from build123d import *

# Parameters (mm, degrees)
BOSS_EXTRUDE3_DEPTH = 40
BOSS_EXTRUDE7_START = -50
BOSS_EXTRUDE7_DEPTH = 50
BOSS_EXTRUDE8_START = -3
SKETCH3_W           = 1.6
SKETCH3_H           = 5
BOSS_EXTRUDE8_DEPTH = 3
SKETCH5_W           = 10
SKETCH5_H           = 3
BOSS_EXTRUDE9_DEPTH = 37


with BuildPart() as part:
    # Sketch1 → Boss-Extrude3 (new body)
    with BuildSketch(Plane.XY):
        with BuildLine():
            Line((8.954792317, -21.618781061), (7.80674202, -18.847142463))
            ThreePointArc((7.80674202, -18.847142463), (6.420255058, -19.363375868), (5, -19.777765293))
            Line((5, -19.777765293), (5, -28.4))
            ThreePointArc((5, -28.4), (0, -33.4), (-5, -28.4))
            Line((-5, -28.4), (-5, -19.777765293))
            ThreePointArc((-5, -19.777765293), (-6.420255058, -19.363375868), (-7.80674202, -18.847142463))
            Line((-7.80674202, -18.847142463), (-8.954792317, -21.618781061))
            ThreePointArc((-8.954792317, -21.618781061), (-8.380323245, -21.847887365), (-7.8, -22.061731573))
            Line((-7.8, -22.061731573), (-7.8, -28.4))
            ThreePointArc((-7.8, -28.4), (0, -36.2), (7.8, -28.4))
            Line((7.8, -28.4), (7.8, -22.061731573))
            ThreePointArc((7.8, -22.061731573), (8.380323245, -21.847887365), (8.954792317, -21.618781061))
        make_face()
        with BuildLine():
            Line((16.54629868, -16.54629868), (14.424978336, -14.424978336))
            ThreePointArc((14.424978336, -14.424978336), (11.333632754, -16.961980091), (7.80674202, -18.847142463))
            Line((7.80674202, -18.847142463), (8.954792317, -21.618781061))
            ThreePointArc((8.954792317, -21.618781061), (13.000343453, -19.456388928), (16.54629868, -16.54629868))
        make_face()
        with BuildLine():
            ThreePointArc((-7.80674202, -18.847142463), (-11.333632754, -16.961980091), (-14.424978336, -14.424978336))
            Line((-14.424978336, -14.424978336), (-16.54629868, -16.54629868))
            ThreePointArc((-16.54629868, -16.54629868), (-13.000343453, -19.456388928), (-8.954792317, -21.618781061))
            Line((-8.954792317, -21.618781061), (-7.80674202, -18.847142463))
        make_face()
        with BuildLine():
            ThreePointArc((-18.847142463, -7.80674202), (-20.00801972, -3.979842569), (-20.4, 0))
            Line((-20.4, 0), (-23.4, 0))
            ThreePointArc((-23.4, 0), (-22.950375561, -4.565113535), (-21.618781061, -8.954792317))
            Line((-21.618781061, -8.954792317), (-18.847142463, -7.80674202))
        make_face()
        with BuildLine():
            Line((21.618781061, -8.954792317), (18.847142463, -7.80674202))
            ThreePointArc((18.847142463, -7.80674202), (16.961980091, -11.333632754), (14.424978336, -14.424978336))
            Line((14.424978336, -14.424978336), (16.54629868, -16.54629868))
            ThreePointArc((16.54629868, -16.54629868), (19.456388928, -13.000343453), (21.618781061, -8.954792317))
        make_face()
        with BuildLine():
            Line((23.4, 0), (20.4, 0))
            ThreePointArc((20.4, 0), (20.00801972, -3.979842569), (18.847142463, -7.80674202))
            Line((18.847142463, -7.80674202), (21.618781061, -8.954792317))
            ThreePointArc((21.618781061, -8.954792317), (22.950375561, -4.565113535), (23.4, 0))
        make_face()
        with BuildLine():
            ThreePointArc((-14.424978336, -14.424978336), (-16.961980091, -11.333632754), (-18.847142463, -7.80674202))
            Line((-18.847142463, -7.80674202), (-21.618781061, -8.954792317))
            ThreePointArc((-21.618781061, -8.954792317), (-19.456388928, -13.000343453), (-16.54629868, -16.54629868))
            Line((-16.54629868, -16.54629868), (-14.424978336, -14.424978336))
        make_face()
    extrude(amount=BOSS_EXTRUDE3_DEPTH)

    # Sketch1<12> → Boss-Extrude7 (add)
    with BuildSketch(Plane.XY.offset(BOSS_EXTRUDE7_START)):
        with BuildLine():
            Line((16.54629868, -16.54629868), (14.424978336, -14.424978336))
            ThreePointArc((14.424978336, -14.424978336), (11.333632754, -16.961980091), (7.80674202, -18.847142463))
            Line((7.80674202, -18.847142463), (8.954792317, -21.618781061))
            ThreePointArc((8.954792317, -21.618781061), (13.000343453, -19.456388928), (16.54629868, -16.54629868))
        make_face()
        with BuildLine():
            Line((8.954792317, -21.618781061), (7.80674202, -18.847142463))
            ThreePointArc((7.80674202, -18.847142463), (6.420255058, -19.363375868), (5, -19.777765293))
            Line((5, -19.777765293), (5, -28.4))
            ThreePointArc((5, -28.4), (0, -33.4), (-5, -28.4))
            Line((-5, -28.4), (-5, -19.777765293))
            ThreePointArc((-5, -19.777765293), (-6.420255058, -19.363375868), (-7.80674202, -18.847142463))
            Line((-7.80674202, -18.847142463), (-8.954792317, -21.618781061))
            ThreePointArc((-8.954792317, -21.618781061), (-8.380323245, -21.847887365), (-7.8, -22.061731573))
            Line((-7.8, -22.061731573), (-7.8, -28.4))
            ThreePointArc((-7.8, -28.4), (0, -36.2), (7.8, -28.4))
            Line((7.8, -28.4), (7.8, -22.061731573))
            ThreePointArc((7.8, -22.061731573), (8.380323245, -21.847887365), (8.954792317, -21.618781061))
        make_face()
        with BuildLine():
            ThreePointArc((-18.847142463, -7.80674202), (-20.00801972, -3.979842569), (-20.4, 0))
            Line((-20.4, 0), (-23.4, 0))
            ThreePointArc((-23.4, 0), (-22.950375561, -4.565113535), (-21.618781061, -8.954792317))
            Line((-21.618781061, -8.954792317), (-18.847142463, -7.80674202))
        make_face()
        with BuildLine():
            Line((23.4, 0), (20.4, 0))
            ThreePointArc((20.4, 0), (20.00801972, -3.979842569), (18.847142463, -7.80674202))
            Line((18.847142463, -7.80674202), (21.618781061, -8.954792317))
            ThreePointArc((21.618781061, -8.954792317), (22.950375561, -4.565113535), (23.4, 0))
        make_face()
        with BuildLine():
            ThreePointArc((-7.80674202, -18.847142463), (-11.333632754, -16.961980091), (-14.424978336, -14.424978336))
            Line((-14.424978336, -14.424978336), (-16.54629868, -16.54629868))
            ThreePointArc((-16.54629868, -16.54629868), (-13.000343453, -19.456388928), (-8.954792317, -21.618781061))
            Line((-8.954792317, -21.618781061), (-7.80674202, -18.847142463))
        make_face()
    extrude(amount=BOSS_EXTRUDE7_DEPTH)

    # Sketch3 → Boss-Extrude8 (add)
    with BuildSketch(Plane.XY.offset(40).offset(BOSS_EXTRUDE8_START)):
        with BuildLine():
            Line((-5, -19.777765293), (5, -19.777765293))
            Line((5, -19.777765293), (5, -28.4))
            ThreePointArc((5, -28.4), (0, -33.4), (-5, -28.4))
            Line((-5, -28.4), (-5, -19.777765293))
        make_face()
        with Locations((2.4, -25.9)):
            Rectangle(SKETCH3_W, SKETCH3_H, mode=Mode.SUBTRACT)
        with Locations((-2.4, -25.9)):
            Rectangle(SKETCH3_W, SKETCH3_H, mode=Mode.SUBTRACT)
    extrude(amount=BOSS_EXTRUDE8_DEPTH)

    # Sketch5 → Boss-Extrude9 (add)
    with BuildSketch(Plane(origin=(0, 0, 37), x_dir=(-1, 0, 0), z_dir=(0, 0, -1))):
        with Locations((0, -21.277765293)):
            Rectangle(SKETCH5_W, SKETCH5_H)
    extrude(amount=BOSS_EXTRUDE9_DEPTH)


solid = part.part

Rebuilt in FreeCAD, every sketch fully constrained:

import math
import FreeCAD as App
import Part
import Sketcher
from FreeCAD import Vector
Q = App.Units.Quantity

doc = App.newDocument("Part")
params = doc.addObject("Spreadsheet::Sheet", "Params")
for row, (alias, value) in enumerate([
    ("sketch1_radius", "5 mm"),
    ("sketch1_radius2", "20.4 mm"),
    ("sketch1_radius3", "23.4 mm"),
    ("sketch1_radius4", "7.8 mm"),
    ("pad1_length", "40 mm"),
    ("sketch2_radius", "5 mm"),
    ("sketch2_radius2", "20.4 mm"),
    ("sketch2_radius3", "23.4 mm"),
    ("sketch2_radius4", "7.8 mm"),
    ("pad2_length", "50 mm"),
    ("sketch3_radius", "5 mm"),
    ("sketch3_height", "5 mm"),
    ("sketch3_width", "1.6 mm"),
    ("pad3_length", "3 mm"),
    ("sketch4_width", "10 mm"),
    ("sketch4_height", "3 mm"),
    ("pad4_length", "37 mm"),
], start=1):
    params.set(f"A{row}", alias)
    params.set(f"B{row}", "=" + value)
    params.setAlias(f"B{row}", alias)

body = doc.addObject("PartDesign::Body", "Body")

sketch1 = body.newObject("Sketcher::SketchObject", "Sketch")
sketch1.AttachmentSupport = (doc.getObject("XY_Plane"), [""])
sketch1.MapMode = "FlatFace"
sketch1.addGeometry([
    Part.ArcOfCircle(Part.Circle(Vector(0, 0, 0), Vector(0, 0, 1), 20.4), math.radians(-75.81), math.radians(-67.5)),
    Part.LineSegment(Vector(5, -19.8, 0), Vector(5, -28.4, 0)),
    Part.ArcOfCircle(Part.Circle(Vector(0, -28.4, 0), Vector(0, 0, 1), 5), math.radians(180), math.radians(360)),
    Part.LineSegment(Vector(-5, -28.4, 0), Vector(-5, -19.8, 0)),
    Part.ArcOfCircle(Part.Circle(Vector(0, 0, 0), Vector(0, 0, 1), 20.4), math.radians(-112.5), math.radians(-104.19)),
    Part.ArcOfCircle(Part.Circle(Vector(0, 0, 0), Vector(0, 0, 1), 20.4), math.radians(-135), math.radians(-112)),
    Part.ArcOfCircle(Part.Circle(Vector(0, 0, 0), Vector(0, 0, 1), 20.4), math.radians(-158), math.radians(-135)),
    Part.ArcOfCircle(Part.Circle(Vector(0, 0, 0), Vector(0, 0, 1), 20.4), math.radians(-180), math.radians(-158)),
    Part.LineSegment(Vector(-20.4, 0, 0), Vector(-23.4, 0, 0)),
    Part.ArcOfCircle(Part.Circle(Vector(0, 0, 0), Vector(0, 0, 1), 23.4), math.radians(-180), math.radians(-158)),
    Part.ArcOfCircle(Part.Circle(Vector(0, 0, 0), Vector(0, 0, 1), 23.4), math.radians(-158), math.radians(-135)),
    Part.ArcOfCircle(Part.Circle(Vector(0, 0, 0), Vector(0, 0, 1), 23.4), math.radians(-135), math.radians(-112)),
    Part.ArcOfCircle(Part.Circle(Vector(0, 0, 0), Vector(0, 0, 1), 23.4), math.radians(-112.5), math.radians(-109.47)),
    Part.LineSegment(Vector(-7.8, -22.1, 0), Vector(-7.8, -28.4, 0)),
    Part.ArcOfCircle(Part.Circle(Vector(0, -28.4, 0), Vector(0, 0, 1), 7.8), math.radians(180), math.radians(360)),
    Part.LineSegment(Vector(7.8, -28.4, 0), Vector(7.8, -22.1, 0)),
    Part.ArcOfCircle(Part.Circle(Vector(0, 0, 0), Vector(0, 0, 1), 23.4), math.radians(-70.53), math.radians(-67.5)),
    Part.ArcOfCircle(Part.Circle(Vector(0, 0, 0), Vector(0, 0, 1), 23.4), math.radians(-68), math.radians(-45)),
    Part.ArcOfCircle(Part.Circle(Vector(0, 0, 0), Vector(0, 0, 1), 23.4), math.radians(-45), math.radians(-22)),
    Part.ArcOfCircle(Part.Circle(Vector(0, 0, 0), Vector(0, 0, 1), 23.4), math.radians(-22), math.radians(0)),
    Part.LineSegment(Vector(23.4, 0, 0), Vector(20.4, 0, 0)),
    Part.ArcOfCircle(Part.Circle(Vector(0, 0, 0), Vector(0, 0, 1), 20.4), math.radians(-22), math.radians(0)),
    Part.ArcOfCircle(Part.Circle(Vector(0, 0, 0), Vector(0, 0, 1), 20.4), math.radians(-45), math.radians(-22)),
    Part.ArcOfCircle(Part.Circle(Vector(0, 0, 0), Vector(0, 0, 1), 20.4), math.radians(-68), math.radians(-45)),
], False)
sketch1.addConstraint([
    Sketcher.Constraint("Coincident", 0, 1, 1, 1),
    Sketcher.Constraint("Tangent", 1, 2, 2, 2),
    Sketcher.Constraint("Tangent", 2, 1, 3, 1),
    Sketcher.Constraint("Coincident", 3, 2, 4, 2),
    Sketcher.Constraint("Tangent", 4, 1, 5, 2),
    Sketcher.Constraint("Tangent", 5, 1, 6, 2),
    Sketcher.Constraint("Tangent", 6, 1, 7, 2),
    Sketcher.Constraint("Coincident", 7, 1, 8, 1),
    Sketcher.Constraint("Coincident", 8, 2, 9, 1),
    Sketcher.Constraint("Tangent", 9, 2, 10, 1),
    Sketcher.Constraint("Tangent", 10, 2, 11, 1),
    Sketcher.Constraint("Tangent", 11, 2, 12, 1),
    Sketcher.Constraint("Coincident", 12, 2, 13, 1),
    Sketcher.Constraint("Tangent", 13, 2, 14, 1),
    Sketcher.Constraint("Tangent", 14, 2, 15, 1),
    Sketcher.Constraint("Coincident", 15, 2, 16, 1),
    Sketcher.Constraint("Tangent", 16, 2, 17, 1),
    Sketcher.Constraint("Tangent", 17, 2, 18, 1),
    Sketcher.Constraint("Tangent", 18, 2, 19, 1),
    Sketcher.Constraint("Coincident", 19, 2, 20, 1),
    Sketcher.Constraint("Coincident", 20, 2, 21, 2),
    Sketcher.Constraint("Tangent", 21, 1, 22, 2),
    Sketcher.Constraint("Tangent", 22, 1, 23, 2),
    Sketcher.Constraint("Tangent", 23, 1, 0, 2),
    Sketcher.Constraint("Vertical", 1),
    Sketcher.Constraint("Vertical", 3),
    Sketcher.Constraint("Horizontal", 8),
    Sketcher.Constraint("Vertical", 13),
    Sketcher.Constraint("Vertical", 15),
    Sketcher.Constraint("Horizontal", 20),
    Sketcher.Constraint("Coincident", 0, 3, -1, 1),
    Sketcher.Constraint("Coincident", 4, 3, -1, 1),
    Sketcher.Constraint("Coincident", 6, 3, -1, 1),
    Sketcher.Constraint("Coincident", 9, 3, -1, 1),
    Sketcher.Constraint("Coincident", 11, 3, -1, 1),
    Sketcher.Constraint("Coincident", 16, 3, -1, 1),
    Sketcher.Constraint("Coincident", 18, 3, -1, 1),
    Sketcher.Constraint("Coincident", 21, 3, -1, 1),
    Sketcher.Constraint("Coincident", 14, 3, 2, 3),
    Sketcher.Constraint("Equal", 0, 4),
    Sketcher.Constraint("Equal", 6, 7),
    Sketcher.Constraint("Equal", 11, 12),
    Sketcher.Constraint("Equal", 12, 16),
    Sketcher.Constraint("Equal", 18, 19),
    Sketcher.Constraint("Equal", 7, 21),
    Sketcher.Constraint("PointOnObject", 2, 3, -2),
    Sketcher.Constraint("PointOnObject", 7, 1, -1),
    Sketcher.Constraint("PointOnObject", 19, 2, -1),
    Sketcher.Constraint("Horizontal", 11, 2, 16, 2),
    Sketcher.Constraint("Horizontal", 10, 2, 17, 2),
    Sketcher.Constraint("Horizontal", 9, 2, 18, 2),
    Sketcher.Constraint("Horizontal", 6, 1, 21, 1),
    Sketcher.Constraint("Horizontal", 5, 1, 22, 1),
    Sketcher.Constraint("Horizontal", 4, 1, 23, 1),
    Sketcher.Constraint("Radius", 2, Q("5 mm")),
    Sketcher.Constraint("Radius", 0, Q("20.4 mm")),
    Sketcher.Constraint("Radius", 9, Q("23.4 mm")),
    Sketcher.Constraint("Radius", 14, Q("7.8 mm")),
    Sketcher.Constraint("DistanceY", 2, 3, -1, 1, Q("28.4 mm")),
    Sketcher.Constraint("DistanceX", 10, 2, -1, 1, Q("16.546299 mm")),
    Sketcher.Constraint("DistanceX", 6, 1, 4, 1, Q("11.0404 mm")),
    Sketcher.Constraint("DistanceY", 4, 1, 6, 1, Q("11.0404 mm")),
    Sketcher.Constraint("DistanceX", 5, 1, -1, 1, Q("14.424978 mm")),
    Sketcher.Constraint("DistanceX", 9, 2, -1, 1, Q("21.618781 mm")),
    Sketcher.Constraint("DistanceY", 11, 2, -1, 1, Q("21.618781 mm")),
])
sketch1.setExpression("Constraints[54]", "Params.sketch1_radius")
sketch1.setExpression("Constraints[55]", "Params.sketch1_radius2")
sketch1.setExpression("Constraints[56]", "Params.sketch1_radius3")
sketch1.setExpression("Constraints[57]", "Params.sketch1_radius4")
pad1 = body.newObject("PartDesign::Pad", "Pad")
pad1.Profile = sketch1
pad1.setExpression("Length", "Params.pad1_length")

sketch2 = body.newObject("Sketcher::SketchObject", "Sketch001")
sketch2.AttachmentSupport = (doc.getObject("XY_Plane"), [""])
sketch2.MapMode = "FlatFace"
sketch2.AttachmentOffset = App.Placement(Vector(0, 0, -50), App.Rotation())
sketch2.addGeometry([
    Part.LineSegment(Vector(16.5, -16.5, 0), Vector(14.4, -14.4, 0)),
    Part.ArcOfCircle(Part.Circle(Vector(0, 0, 0), Vector(0, 0, 1), 20.4), math.radians(-68), math.radians(-45)),
    Part.ArcOfCircle(Part.Circle(Vector(0, 0, 0), Vector(0, 0, 1), 20.4), math.radians(-75.81), math.radians(-67.5)),
    Part.LineSegment(Vector(5, -19.8, 0), Vector(5, -28.4, 0)),
    Part.ArcOfCircle(Part.Circle(Vector(0, -28.4, 0), Vector(0, 0, 1), 5), math.radians(180), math.radians(360)),
    Part.LineSegment(Vector(-5, -28.4, 0), Vector(-5, -19.8, 0)),
    Part.ArcOfCircle(Part.Circle(Vector(0, 0, 0), Vector(0, 0, 1), 20.4), math.radians(-112.5), math.radians(-104.19)),
    Part.ArcOfCircle(Part.Circle(Vector(0, 0, 0), Vector(0, 0, 1), 20.4), math.radians(-135), math.radians(-112)),
    Part.LineSegment(Vector(-14.4, -14.4, 0), Vector(-16.5, -16.5, 0)),
    Part.ArcOfCircle(Part.Circle(Vector(0, 0, 0), Vector(0, 0, 1), 23.4), math.radians(-135), math.radians(-112)),
    Part.ArcOfCircle(Part.Circle(Vector(0, 0, 0), Vector(0, 0, 1), 23.4), math.radians(-112.5), math.radians(-109.47)),
    Part.LineSegment(Vector(-7.8, -22.1, 0), Vector(-7.8, -28.4, 0)),
    Part.ArcOfCircle(Part.Circle(Vector(0, -28.4, 0), Vector(0, 0, 1), 7.8), math.radians(180), math.radians(360)),
    Part.LineSegment(Vector(7.8, -28.4, 0), Vector(7.8, -22.1, 0)),
    Part.ArcOfCircle(Part.Circle(Vector(0, 0, 0), Vector(0, 0, 1), 23.4), math.radians(-70.53), math.radians(-67.5)),
    Part.ArcOfCircle(Part.Circle(Vector(0, 0, 0), Vector(0, 0, 1), 23.4), math.radians(-68), math.radians(-45)),
    Part.ArcOfCircle(Part.Circle(Vector(0, 0, 0), Vector(0, 0, 1), 20.4), math.radians(-180), math.radians(-158)),
    Part.LineSegment(Vector(-20.4, 0, 0), Vector(-23.4, 0, 0)),
    Part.ArcOfCircle(Part.Circle(Vector(0, 0, 0), Vector(0, 0, 1), 23.4), math.radians(-180), math.radians(-158)),
    Part.LineSegment(Vector(-21.6, -9, 0), Vector(-18.8, -7.8, 0)),
    Part.LineSegment(Vector(23.4, 0, 0), Vector(20.4, 0, 0)),
    Part.ArcOfCircle(Part.Circle(Vector(0, 0, 0), Vector(0, 0, 1), 20.4), math.radians(-22), math.radians(0)),
    Part.LineSegment(Vector(18.8, -7.8, 0), Vector(21.6, -9, 0)),
    Part.ArcOfCircle(Part.Circle(Vector(0, 0, 0), Vector(0, 0, 1), 23.4), math.radians(-22), math.radians(0)),
], False)
sketch2.addConstraint([
    Sketcher.Constraint("Coincident", 0, 2, 1, 2),
    Sketcher.Constraint("Tangent", 1, 1, 2, 2),
    Sketcher.Constraint("Coincident", 2, 1, 3, 1),
    Sketcher.Constraint("Tangent", 3, 2, 4, 2),
    Sketcher.Constraint("Tangent", 4, 1, 5, 1),
    Sketcher.Constraint("Coincident", 5, 2, 6, 2),
    Sketcher.Constraint("Tangent", 6, 1, 7, 2),
    Sketcher.Constraint("Coincident", 7, 1, 8, 1),
    Sketcher.Constraint("Coincident", 8, 2, 9, 1),
    Sketcher.Constraint("Tangent", 9, 2, 10, 1),
    Sketcher.Constraint("Coincident", 10, 2, 11, 1),
    Sketcher.Constraint("Tangent", 11, 2, 12, 1),
    Sketcher.Constraint("Tangent", 12, 2, 13, 1),
    Sketcher.Constraint("Coincident", 13, 2, 14, 1),
    Sketcher.Constraint("Tangent", 14, 2, 15, 1),
    Sketcher.Constraint("Coincident", 15, 2, 0, 1),
    Sketcher.Constraint("Coincident", 16, 1, 17, 1),
    Sketcher.Constraint("Coincident", 17, 2, 18, 1),
    Sketcher.Constraint("Coincident", 18, 2, 19, 1),
    Sketcher.Constraint("Coincident", 19, 2, 16, 2),
    Sketcher.Constraint("Coincident", 20, 2, 21, 2),
    Sketcher.Constraint("Coincident", 21, 1, 22, 1),
    Sketcher.Constraint("Coincident", 22, 2, 23, 1),
    Sketcher.Constraint("Coincident", 23, 2, 20, 1),
    Sketcher.Constraint("Vertical", 3),
    Sketcher.Constraint("Vertical", 5),
    Sketcher.Constraint("Vertical", 11),
    Sketcher.Constraint("Vertical", 13),
    Sketcher.Constraint("Horizontal", 17),
    Sketcher.Constraint("Horizontal", 20),
    Sketcher.Constraint("Coincident", 1, 3, -1, 1),
    Sketcher.Constraint("Coincident", 6, 3, -1, 1),
    Sketcher.Constraint("Coincident", 9, 3, -1, 1),
    Sketcher.Constraint("Coincident", 14, 3, -1, 1),
    Sketcher.Constraint("Coincident", 16, 3, -1, 1),
    Sketcher.Constraint("Coincident", 18, 3, -1, 1),
    Sketcher.Constraint("Coincident", 21, 3, -1, 1),
    Sketcher.Constraint("Coincident", 23, 3, -1, 1),
    Sketcher.Constraint("Coincident", 12, 3, 4, 3),
    Sketcher.Constraint("Equal", 1, 2),
    Sketcher.Constraint("Equal", 2, 6),
    Sketcher.Constraint("Equal", 6, 7),
    Sketcher.Constraint("Equal", 9, 10),
    Sketcher.Constraint("Equal", 10, 14),
    Sketcher.Constraint("Equal", 14, 15),
    Sketcher.Constraint("Equal", 7, 16),
    Sketcher.Constraint("Equal", 15, 18),
    Sketcher.Constraint("Equal", 16, 21),
    Sketcher.Constraint("Equal", 18, 23),
    Sketcher.Constraint("PointOnObject", 4, 3, -2),
    Sketcher.Constraint("PointOnObject", 16, 1, -1),
    Sketcher.Constraint("PointOnObject", 20, 2, -1),
    Sketcher.Constraint("Perpendicular", 0, 8),
    Sketcher.Constraint("Horizontal", 1, 1, 6, 1),
    Sketcher.Constraint("Horizontal", 0, 2, 7, 1),
    Sketcher.Constraint("Horizontal", 9, 2, 14, 2),
    Sketcher.Constraint("Horizontal", 8, 2, 15, 2),
    Sketcher.Constraint("Horizontal", 19, 2, 21, 1),
    Sketcher.Constraint("Horizontal", 18, 2, 22, 2),
    Sketcher.Constraint("Radius", 4, Q("5 mm")),
    Sketcher.Constraint("Radius", 1, Q("20.4 mm")),
    Sketcher.Constraint("Radius", 9, Q("23.4 mm")),
    Sketcher.Constraint("Radius", 12, Q("7.8 mm")),
    Sketcher.Constraint("Angle", 19, Q("22.5 deg")),
    Sketcher.Constraint("DistanceY", 4, 3, -1, 1, Q("28.4 mm")),
    Sketcher.Constraint("DistanceX", 8, 2, -1, 1, Q("16.546299 mm")),
    Sketcher.Constraint("DistanceX", 1, 1, 21, 1, Q("11.0404 mm")),
    Sketcher.Constraint("DistanceY", 1, 1, 21, 1, Q("11.0404 mm")),
    Sketcher.Constraint("DistanceY", 9, 2, -1, 1, Q("21.618781 mm")),
])
sketch2.setExpression("Constraints[59]", "Params.sketch2_radius")
sketch2.setExpression("Constraints[60]", "Params.sketch2_radius2")
sketch2.setExpression("Constraints[61]", "Params.sketch2_radius3")
sketch2.setExpression("Constraints[62]", "Params.sketch2_radius4")
pad2 = body.newObject("PartDesign::Pad", "Pad001")
pad2.Profile = sketch2
pad2.setExpression("Length", "Params.pad2_length")

sketch3 = body.newObject("Sketcher::SketchObject", "Sketch002")
sketch3.AttachmentSupport = (doc.getObject("XY_Plane"), [""])
sketch3.MapMode = "FlatFace"
sketch3.AttachmentOffset = App.Placement(Vector(0, 0, 37), App.Rotation())
sketch3.addGeometry([
    Part.LineSegment(Vector(5, -19.8, 0), Vector(-5, -19.8, 0)),
    Part.LineSegment(Vector(-5, -19.8, 0), Vector(-5, -28.4, 0)),
    Part.ArcOfCircle(Part.Circle(Vector(0, -28.4, 0), Vector(0, 0, 1), 5), math.radians(180), math.radians(360)),
    Part.LineSegment(Vector(5, -28.4, 0), Vector(5, -19.8, 0)),
    Part.LineSegment(Vector(1.6, -28.4, 0), Vector(1.6, -23.4, 0)),
    Part.LineSegment(Vector(1.6, -23.4, 0), Vector(3.2, -23.4, 0)),
    Part.LineSegment(Vector(3.2, -23.4, 0), Vector(3.2, -28.4, 0)),
    Part.LineSegment(Vector(3.2, -28.4, 0), Vector(1.6, -28.4, 0)),
    Part.LineSegment(Vector(-3.2, -28.4, 0), Vector(-3.2, -23.4, 0)),
    Part.LineSegment(Vector(-3.2, -23.4, 0), Vector(-1.6, -23.4, 0)),
    Part.LineSegment(Vector(-1.6, -23.4, 0), Vector(-1.6, -28.4, 0)),
    Part.LineSegment(Vector(-1.6, -28.4, 0), Vector(-3.2, -28.4, 0)),
], False)
sketch3.addConstraint([
    Sketcher.Constraint("Coincident", 0, 2, 1, 1),
    Sketcher.Constraint("Tangent", 1, 2, 2, 1),
    Sketcher.Constraint("Tangent", 2, 2, 3, 1),
    Sketcher.Constraint("Coincident", 3, 2, 0, 1),
    Sketcher.Constraint("Coincident", 4, 2, 5, 1),
    Sketcher.Constraint("Coincident", 5, 2, 6, 1),
    Sketcher.Constraint("Coincident", 6, 2, 7, 1),
    Sketcher.Constraint("Coincident", 7, 2, 4, 1),
    Sketcher.Constraint("Coincident", 8, 2, 9, 1),
    Sketcher.Constraint("Coincident", 9, 2, 10, 1),
    Sketcher.Constraint("Coincident", 10, 2, 11, 1),
    Sketcher.Constraint("Coincident", 11, 2, 8, 1),
    Sketcher.Constraint("Horizontal", 0),
    Sketcher.Constraint("Vertical", 1),
    Sketcher.Constraint("Vertical", 3),
    Sketcher.Constraint("Vertical", 4),
    Sketcher.Constraint("Horizontal", 5),
    Sketcher.Constraint("Vertical", 6),
    Sketcher.Constraint("Horizontal", 7),
    Sketcher.Constraint("Vertical", 8),
    Sketcher.Constraint("Horizontal", 9),
    Sketcher.Constraint("Vertical", 10),
    Sketcher.Constraint("Horizontal", 11),
    Sketcher.Constraint("Symmetric", 5, 2, 8, 2, -2),
    Sketcher.Constraint("Symmetric", 7, 2, 10, 2, -2),
    Sketcher.Constraint("PointOnObject", 2, 3, -2),
    Sketcher.Constraint("Horizontal", 2, 2, 6, 2),
    Sketcher.Constraint("Radius", 2, Q("5 mm")),
    Sketcher.Constraint("DistanceY", 4, 1, 4, 2, Q("5 mm")),
    Sketcher.Constraint("DistanceX", 5, 1, 5, 2, Q("1.6 mm")),
    Sketcher.Constraint("DistanceY", 2, 3, -1, 1, Q("28.4 mm")),
    Sketcher.Constraint("DistanceX", -1, 1, 4, 2, Q("1.6 mm")),
    Sketcher.Constraint("DistanceY", 1, 2, 1, 1, Q("8.622235 mm")),
])
sketch3.setExpression("Constraints[27]", "Params.sketch3_radius")
sketch3.setExpression("Constraints[28]", "Params.sketch3_height")
sketch3.setExpression("Constraints[29]", "Params.sketch3_width")
pad3 = body.newObject("PartDesign::Pad", "Pad002")
pad3.Profile = sketch3
pad3.setExpression("Length", "Params.pad3_length")

sketch4 = body.newObject("Sketcher::SketchObject", "Sketch003")
sketch4.AttachmentSupport = (doc.getObject("XY_Plane"), [""])
sketch4.MapMode = "FlatFace"
sketch4.AttachmentOffset = App.Placement(Vector(0, 0, 37), App.Rotation())
sketch4.addGeometry([
    Part.LineSegment(Vector(5, -19.8, 0), Vector(5, -22.8, 0)),
    Part.LineSegment(Vector(5, -22.8, 0), Vector(-5, -22.8, 0)),
    Part.LineSegment(Vector(-5, -22.8, 0), Vector(-5, -19.8, 0)),
    Part.LineSegment(Vector(-5, -19.8, 0), Vector(5, -19.8, 0)),
], False)
sketch4.addConstraint([
    Sketcher.Constraint("Coincident", 0, 2, 1, 1),
    Sketcher.Constraint("Coincident", 1, 2, 2, 1),
    Sketcher.Constraint("Coincident", 2, 2, 3, 1),
    Sketcher.Constraint("Coincident", 3, 2, 0, 1),
    Sketcher.Constraint("Vertical", 0),
    Sketcher.Constraint("Horizontal", 1),
    Sketcher.Constraint("Vertical", 2),
    Sketcher.Constraint("Horizontal", 3),
    Sketcher.Constraint("DistanceX", 1, 2, 1, 1, Q("10 mm")),
    Sketcher.Constraint("DistanceY", 0, 2, 0, 1, Q("3 mm")),
    Sketcher.Constraint("DistanceX", -1, 1, 0, 2, Q("5 mm")),
    Sketcher.Constraint("DistanceY", 0, 2, -1, 1, Q("22.777765 mm")),
])
sketch4.setExpression("Constraints[8]", "Params.sketch4_width")
sketch4.setExpression("Constraints[9]", "Params.sketch4_height")
pad4 = body.newObject("PartDesign::Pad", "Pad003")
pad4.Profile = sketch4
pad4.setExpression("Length", "Params.pad4_length")
pad4.Reversed = True

doc.recompute()
